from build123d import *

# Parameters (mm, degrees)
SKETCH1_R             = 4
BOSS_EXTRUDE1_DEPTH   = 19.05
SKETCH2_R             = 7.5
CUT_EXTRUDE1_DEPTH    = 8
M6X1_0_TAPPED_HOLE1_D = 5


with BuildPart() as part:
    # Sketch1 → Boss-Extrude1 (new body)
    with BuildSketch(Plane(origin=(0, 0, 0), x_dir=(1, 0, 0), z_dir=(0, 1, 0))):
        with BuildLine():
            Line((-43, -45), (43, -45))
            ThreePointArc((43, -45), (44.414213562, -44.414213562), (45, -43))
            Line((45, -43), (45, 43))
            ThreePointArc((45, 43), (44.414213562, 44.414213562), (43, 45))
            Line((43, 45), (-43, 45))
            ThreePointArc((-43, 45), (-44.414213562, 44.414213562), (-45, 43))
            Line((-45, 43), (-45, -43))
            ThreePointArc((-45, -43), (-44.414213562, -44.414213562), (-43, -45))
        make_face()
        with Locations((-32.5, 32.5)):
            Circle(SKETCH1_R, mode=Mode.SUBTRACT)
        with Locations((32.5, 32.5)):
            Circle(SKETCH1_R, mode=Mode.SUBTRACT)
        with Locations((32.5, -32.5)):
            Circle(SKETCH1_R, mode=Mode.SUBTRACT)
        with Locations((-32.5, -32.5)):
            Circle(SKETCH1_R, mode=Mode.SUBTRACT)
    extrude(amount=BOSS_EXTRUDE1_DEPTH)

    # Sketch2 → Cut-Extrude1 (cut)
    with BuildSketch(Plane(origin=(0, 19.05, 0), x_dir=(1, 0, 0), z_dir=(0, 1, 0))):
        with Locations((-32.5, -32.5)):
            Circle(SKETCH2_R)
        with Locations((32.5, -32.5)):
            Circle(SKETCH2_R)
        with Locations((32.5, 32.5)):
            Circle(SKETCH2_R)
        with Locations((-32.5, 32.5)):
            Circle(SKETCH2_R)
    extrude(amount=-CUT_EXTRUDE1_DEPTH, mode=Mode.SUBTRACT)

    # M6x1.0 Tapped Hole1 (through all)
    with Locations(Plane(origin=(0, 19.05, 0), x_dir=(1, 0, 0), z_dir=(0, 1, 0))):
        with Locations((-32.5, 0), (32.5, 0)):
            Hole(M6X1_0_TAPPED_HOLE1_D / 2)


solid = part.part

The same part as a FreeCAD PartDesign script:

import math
import FreeCAD as App
import Part
import Sketcher
Q = App.Units.Quantity

doc = App.newDocument("Part")
body = doc.addObject("PartDesign::Body", "Body")

# Sketch on XZ plane
sketch1 = body.newObject("Sketcher::SketchObject", "Sketch")
sketch1.AttachmentSupport = (doc.getObject("XZ_Plane"), [""])
sketch1.MapMode = "FlatFace"
sketch1.addGeometry(Part.LineSegment(App.Vector(-43, 45, 0), App.Vector(43, 45, 0)), False)
sketch1.addGeometry(Part.ArcOfCircle(Part.Circle(App.Vector(43, 43, 0), App.Vector(0, 0, 1), 2), math.radians(0), math.radians(90)), False)
sketch1.addGeometry(Part.LineSegment(App.Vector(45, 43, 0), App.Vector(45, -43, 0)), False)
sketch1.addGeometry(Part.ArcOfCircle(Part.Circle(App.Vector(43, -43, 0), App.Vector(0, 0, 1), 2), math.radians(-90), math.radians(0)), False)
sketch1.addGeometry(Part.LineSegment(App.Vector(43, -45, 0), App.Vector(-43, -45, 0)), False)
sketch1.addGeometry(Part.ArcOfCircle(Part.Circle(App.Vector(-43, -43, 0), App.Vector(0, 0, 1), 2), math.radians(-180), math.radians(-90)), False)
sketch1.addGeometry(Part.LineSegment(App.Vector(-45, -43, 0), App.Vector(-45, 43, 0)), False)
sketch1.addGeometry(Part.ArcOfCircle(Part.Circle(App.Vector(-43, 43, 0), App.Vector(0, 0, 1), 2), math.radians(90), math.radians(180)), False)
sketch1.addGeometry(Part.Circle(App.Vector(-32.5, 32.5, 0), App.Vector(0, 0, 1), 4), False)
sketch1.addGeometry(Part.Circle(App.Vector(32.5, 32.5, 0), App.Vector(0, 0, 1), 4), False)
sketch1.addGeometry(Part.Circle(App.Vector(-32.5, -32.5, 0), App.Vector(0, 0, 1), 4), False)
sketch1.addGeometry(Part.Circle(App.Vector(32.5, -32.5, 0), App.Vector(0, 0, 1), 4), False)
sketch1.addConstraint(Sketcher.Constraint("Tangent", 0, 2, 1, 2))
sketch1.addConstraint(Sketcher.Constraint("Tangent", 1, 1, 2, 1))
sketch1.addConstraint(Sketcher.Constraint("Tangent", 2, 2, 3, 2))
sketch1.addConstraint(Sketcher.Constraint("Tangent", 3, 1, 4, 1))
sketch1.addConstraint(Sketcher.Constraint("Tangent", 4, 2, 5, 2))
sketch1.addConstraint(Sketcher.Constraint("Tangent", 5, 1, 6, 1))
sketch1.addConstraint(Sketcher.Constraint("Tangent", 6, 2, 7, 2))
sketch1.addConstraint(Sketcher.Constraint("Tangent", 7, 1, 0, 1))
sketch1.addConstraint(Sketcher.Constraint("Horizontal", 0))
sketch1.addConstraint(Sketcher.Constraint("Vertical", 2))
sketch1.addConstraint(Sketcher.Constraint("Horizontal", 4))
sketch1.addConstraint(Sketcher.Constraint("Vertical", 6))
sketch1.addConstraint(Sketcher.Constraint("Equal", 1, 3))
sketch1.addConstraint(Sketcher.Constraint("Equal", 3, 5))
sketch1.addConstraint(Sketcher.Constraint("Equal", 5, 7))
sketch1.addConstraint(Sketcher.Constraint("Equal", 8, 9))
sketch1.addConstraint(Sketcher.Constraint("Equal", 9, 10))
sketch1.addConstraint(Sketcher.Constraint("Equal", 10, 11))
sketch1.addConstraint(Sketcher.Constraint("Symmetric", 1, 3, 5, 3, -1, 1))
sketch1.addConstraint(Sketcher.Constraint("Symmetric", 9, 3, 10, 3, -1, 1))
sketch1.addConstraint(Sketcher.Constraint("Symmetric", 8, 3, 11, 3, -1, 1))
sketch1.addConstraint(Sketcher.Constraint("Symmetric", 8, 3, 9, 3, -2))
sketch1.addConstraint(Sketcher.Constraint("Equal", 4, 2))
sketch1.addConstraint(Sketcher.Constraint("Diameter", 8, Q("8 mm")))
sketch1.addConstraint(Sketcher.Constraint("Radius", 1, Q("2 mm")))
sketch1.addConstraint(Sketcher.Constraint("DistanceX", 0, 1, 0, 2, Q("86 mm")))
sketch1.addConstraint(Sketcher.Constraint("DistanceX", 8, 3, 9, 3, Q("65 mm")))
sketch1.addConstraint(Sketcher.Constraint("DistanceY", 10, 3, 8, 3, Q("65 mm")))
pad1 = body.newObject("PartDesign::Pad", "Pad")
pad1.Profile = sketch1
pad1.Length = 19.05
pad1.Reversed = True

# Sketch on XZ plane
sketch2 = body.newObject("Sketcher::SketchObject", "Sketch001")
sketch2.AttachmentSupport = (doc.getObject("XZ_Plane"), [""])
sketch2.MapMode = "FlatFace"
sketch2.AttachmentOffset = App.Placement(App.Vector(0, 0, -19.05), App.Rotation())
sketch2.addGeometry(Part.Circle(App.Vector(-32, 32, 0), App.Vector(0, 0, 1), 8), False)
sketch2.addGeometry(Part.Circle(App.Vector(32, 32, 0), App.Vector(0, 0, 1), 8), False)
sketch2.addGeometry(Part.Circle(App.Vector(32, -32, 0), App.Vector(0, 0, 1), 8), False)
sketch2.addGeometry(Part.Circle(App.Vector(-32, -32, 0), App.Vector(0, 0, 1), 8), False)
sketch2.addConstraint(Sketcher.Constraint("Equal", 0, 1))
sketch2.addConstraint(Sketcher.Constraint("Equal", 1, 2))
sketch2.addConstraint(Sketcher.Constraint("Equal", 2, 3))
sketch2.addConstraint(Sketcher.Constraint("Symmetric", 0, 3, 2, 3, -1, 1))
sketch2.addConstraint(Sketcher.Constraint("Symmetric", 1, 3, 3, 3, -1, 1))
sketch2.addConstraint(Sketcher.Constraint("Symmetric", 0, 3, 1, 3, -2))
sketch2.addConstraint(Sketcher.Constraint("Diameter", 0, Q("15 mm")))
sketch2.addConstraint(Sketcher.Constraint("DistanceX", 0, 3, 1, 3, Q("65 mm")))
sketch2.addConstraint(Sketcher.Constraint("DistanceY", 2, 3, 1, 3, Q("65 mm")))
pocket1 = body.newObject("PartDesign::Pocket", "Pocket")
pocket1.Profile = sketch2
pocket1.Length = 8
pocket1.Reversed = True

# Sketch on XZ plane
sketch3 = body.newObject("Sketcher::SketchObject", "Sketch002")
sketch3.AttachmentSupport = (doc.getObject("XZ_Plane"), [""])
sketch3.MapMode = "FlatFace"
sketch3.AttachmentOffset = App.Placement(App.Vector(0, 0, -19.05), App.Rotation())
sketch3.addGeometry(Part.Circle(App.Vector(-32.5, 0, 0), App.Vector(0, 0, 1), 2.5), False)
sketch3.addGeometry(Part.Circle(App.Vector(32.5, 0, 0), App.Vector(0, 0, 1), 2.5), False)
sketch3.addConstraint(Sketcher.Constraint("Equal", 0, 1))
sketch3.addConstraint(Sketcher.Constraint("Symmetric", 0, 3, 1, 3, -1, 1))
sketch3.addConstraint(Sketcher.Constraint("PointOnObject", 0, 3, -1))
sketch3.addConstraint(Sketcher.Constraint("Diameter", 0, Q("5 mm")))
sketch3.addConstraint(Sketcher.Constraint("DistanceX", 0, 3, 1, 3, Q("65 mm")))
doc.recompute()
hole = body.newObject("PartDesign::Hole", "Hole")
hole.Profile = sketch3
hole.ThreadType = "None"
hole.Diameter = 5
hole.DepthType = "ThroughAll"
hole.Reversed = True

doc.recompute()
